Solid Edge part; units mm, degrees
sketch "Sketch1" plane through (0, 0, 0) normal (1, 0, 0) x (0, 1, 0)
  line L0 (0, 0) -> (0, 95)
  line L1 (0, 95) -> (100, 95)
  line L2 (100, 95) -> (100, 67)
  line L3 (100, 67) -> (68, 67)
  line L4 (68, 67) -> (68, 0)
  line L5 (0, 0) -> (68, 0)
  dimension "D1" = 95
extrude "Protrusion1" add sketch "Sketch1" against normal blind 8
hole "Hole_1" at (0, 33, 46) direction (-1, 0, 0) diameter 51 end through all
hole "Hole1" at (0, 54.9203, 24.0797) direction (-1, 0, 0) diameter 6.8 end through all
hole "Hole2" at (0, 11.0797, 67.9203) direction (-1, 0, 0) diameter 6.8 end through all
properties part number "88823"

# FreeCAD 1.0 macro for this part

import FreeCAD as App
import Part
import Sketcher
from FreeCAD import Vector


def add_polygon(sketch, points):
    """Adds a closed chain of lines whose ends are joined by coincident constraints."""
    first, n = sketch.GeometryCount, len(points)
    for a, b in zip(points, points[1:] + points[:1]):
        sketch.addGeometry(Part.LineSegment(App.Vector(*a, 0), App.Vector(*b, 0)), False)
    for i in range(n):
        sketch.addConstraint(Sketcher.Constraint("Coincident", first + i, 2, first + (i + 1) % n, 1))

doc = App.newDocument("Part")
params = doc.addObject("Spreadsheet::Sheet", "Params")
for row, (alias, value) in enumerate([
    ("sketch1_width", "68 mm"),
    ("sketch1_width2", "32 mm"),
    ("sketch1_height", "95 mm"),
    ("sketch1_height2", "67 mm"),
    ("pad1_length", "8 mm"),
    ("sketch2_diameter", "51 mm"),
    ("hole_diameter", "51 mm"),
    ("sketch3_diameter", "6.8 mm"),
    ("hole2_diameter", "6.8 mm"),
    ("sketch4_diameter", "6.8 mm"),
    ("hole3_diameter", "6.8 mm"),
], start=1):
    params.set(f"A{row}", alias)
    params.set(f"B{row}", "=" + value)
    params.setAlias(f"B{row}", alias)

body = doc.addObject("PartDesign::Body", "Body")

# Sketch on YZ plane
sketch1 = body.newObject("Sketcher::SketchObject", "Sketch")
sketch1.AttachmentSupport = (doc.getObject("YZ_Plane"), [""])
sketch1.MapMode = "FlatFace"
add_polygon(sketch1, [(0, 95), (0, 0), (68, 0), (68, 67), (100, 67), (100, 95)])  # lines 0-5
sketch1.addConstraint([
    Sketcher.Constraint("Vertical", 0),
    Sketcher.Constraint("Horizontal", 1),
    Sketcher.Constraint("Vertical", 2),
    Sketcher.Constraint("Horizontal", 3),
    Sketcher.Constraint("Vertical", 4),
    Sketcher.Constraint("Horizontal", 5),
    Sketcher.Constraint("Coincident", 0, 2, -1, 1),
    Sketcher.Constraint("DistanceX", 1, 1, 1, 2, 68.0),
    Sketcher.Constraint("DistanceX", 3, 1, 3, 2, 32.0),
    Sketcher.Constraint("DistanceY", 0, 2, 0, 1, 95.0),
    Sketcher.Constraint("DistanceY", 2, 1, 2, 2, 67.0),
])
sketch1.setExpression("Constraints[13]", "Params.sketch1_width")
sketch1.setExpression("Constraints[14]", "Params.sketch1_width2")
sketch1.setExpression("Constraints[15]", "Params.sketch1_height")
sketch1.setExpression("Constraints[16]", "Params.sketch1_height2")
pad1 = body.newObject("PartDesign::Pad", "Pad")
pad1.Profile = sketch1
pad1.setExpression("Length", "Params.pad1_length")
pad1.Reversed = True

# Sketch on YZ plane
sketch2 = body.newObject("Sketcher::SketchObject", "Sketch001")
sketch2.AttachmentSupport = (doc.getObject("YZ_Plane"), [""])
sketch2.MapMode = "FlatFace"
sketch2.addGeometry(Part.Circle(Vector(33, 46, 0), Vector(0, 0, 1), 25.5), False)
sketch2.addConstraint([
    Sketcher.Constraint("Diameter", 0, 51.0),
    Sketcher.Constraint("DistanceX", -1, 1, 0, 3, 33.0),
    Sketcher.Constraint("DistanceY", -1, 1, 0, 3, 46.0),
])
sketch2.setExpression("Constraints[0]", "Params.sketch2_diameter")
doc.recompute()
hole = body.newObject("PartDesign::Hole", "Hole")
hole.Profile = sketch2
hole.ThreadType = "None"
hole.setExpression("Diameter", "Params.hole_diameter")
hole.DepthType = "ThroughAll"

# Sketch on YZ plane
sketch3 = body.newObject("Sketcher::SketchObject", "Sketch002")
sketch3.AttachmentSupport = (doc.getObject("YZ_Plane"), [""])
sketch3.MapMode = "FlatFace"
sketch3.addGeometry(Part.Circle(Vector(54.9203, 24.0797, 0), Vector(0, 0, 1), 3.4), False)
sketch3.addConstraint([
    Sketcher.Constraint("Diameter", 0, 6.8),
    Sketcher.Constraint("DistanceX", -1, 1, 0, 3, 54.9203),
    Sketcher.Constraint("DistanceY", -1, 1, 0, 3, 24.0797),
])
sketch3.setExpression("Constraints[0]", "Params.sketch3_diameter")
doc.recompute()
hole2 = body.newObject("PartDesign::Hole", "Hole001")
hole2.Profile = sketch3
hole2.ThreadType = "None"
hole2.setExpression("Diameter", "Params.hole2_diameter")
hole2.DepthType = "ThroughAll"

# Sketch on YZ plane
sketch4 = body.newObject("Sketcher::SketchObject", "Sketch003")
sketch4.AttachmentSupport = (doc.getObject("YZ_Plane"), [""])
sketch4.MapMode = "FlatFace"
sketch4.addGeometry(Part.Circle(Vector(11.0797, 67.9203, 0), Vector(0, 0, 1), 3.4), False)
sketch4.addConstraint([
    Sketcher.Constraint("Diameter", 0, 6.8),
    Sketcher.Constraint("DistanceX", -1, 1, 0, 3, 11.0797),
    Sketcher.Constraint("DistanceY", -1, 1, 0, 3, 67.9203),
])
sketch4.setExpression("Constraints[0]", "Params.sketch4_diameter")
doc.recompute()
hole3 = body.newObject("PartDesign::Hole", "Hole002")
hole3.Profile = sketch4
hole3.ThreadType = "None"
hole3.setExpression("Diameter", "Params.hole3_diameter")
hole3.DepthType = "ThroughAll"

doc.recompute()
